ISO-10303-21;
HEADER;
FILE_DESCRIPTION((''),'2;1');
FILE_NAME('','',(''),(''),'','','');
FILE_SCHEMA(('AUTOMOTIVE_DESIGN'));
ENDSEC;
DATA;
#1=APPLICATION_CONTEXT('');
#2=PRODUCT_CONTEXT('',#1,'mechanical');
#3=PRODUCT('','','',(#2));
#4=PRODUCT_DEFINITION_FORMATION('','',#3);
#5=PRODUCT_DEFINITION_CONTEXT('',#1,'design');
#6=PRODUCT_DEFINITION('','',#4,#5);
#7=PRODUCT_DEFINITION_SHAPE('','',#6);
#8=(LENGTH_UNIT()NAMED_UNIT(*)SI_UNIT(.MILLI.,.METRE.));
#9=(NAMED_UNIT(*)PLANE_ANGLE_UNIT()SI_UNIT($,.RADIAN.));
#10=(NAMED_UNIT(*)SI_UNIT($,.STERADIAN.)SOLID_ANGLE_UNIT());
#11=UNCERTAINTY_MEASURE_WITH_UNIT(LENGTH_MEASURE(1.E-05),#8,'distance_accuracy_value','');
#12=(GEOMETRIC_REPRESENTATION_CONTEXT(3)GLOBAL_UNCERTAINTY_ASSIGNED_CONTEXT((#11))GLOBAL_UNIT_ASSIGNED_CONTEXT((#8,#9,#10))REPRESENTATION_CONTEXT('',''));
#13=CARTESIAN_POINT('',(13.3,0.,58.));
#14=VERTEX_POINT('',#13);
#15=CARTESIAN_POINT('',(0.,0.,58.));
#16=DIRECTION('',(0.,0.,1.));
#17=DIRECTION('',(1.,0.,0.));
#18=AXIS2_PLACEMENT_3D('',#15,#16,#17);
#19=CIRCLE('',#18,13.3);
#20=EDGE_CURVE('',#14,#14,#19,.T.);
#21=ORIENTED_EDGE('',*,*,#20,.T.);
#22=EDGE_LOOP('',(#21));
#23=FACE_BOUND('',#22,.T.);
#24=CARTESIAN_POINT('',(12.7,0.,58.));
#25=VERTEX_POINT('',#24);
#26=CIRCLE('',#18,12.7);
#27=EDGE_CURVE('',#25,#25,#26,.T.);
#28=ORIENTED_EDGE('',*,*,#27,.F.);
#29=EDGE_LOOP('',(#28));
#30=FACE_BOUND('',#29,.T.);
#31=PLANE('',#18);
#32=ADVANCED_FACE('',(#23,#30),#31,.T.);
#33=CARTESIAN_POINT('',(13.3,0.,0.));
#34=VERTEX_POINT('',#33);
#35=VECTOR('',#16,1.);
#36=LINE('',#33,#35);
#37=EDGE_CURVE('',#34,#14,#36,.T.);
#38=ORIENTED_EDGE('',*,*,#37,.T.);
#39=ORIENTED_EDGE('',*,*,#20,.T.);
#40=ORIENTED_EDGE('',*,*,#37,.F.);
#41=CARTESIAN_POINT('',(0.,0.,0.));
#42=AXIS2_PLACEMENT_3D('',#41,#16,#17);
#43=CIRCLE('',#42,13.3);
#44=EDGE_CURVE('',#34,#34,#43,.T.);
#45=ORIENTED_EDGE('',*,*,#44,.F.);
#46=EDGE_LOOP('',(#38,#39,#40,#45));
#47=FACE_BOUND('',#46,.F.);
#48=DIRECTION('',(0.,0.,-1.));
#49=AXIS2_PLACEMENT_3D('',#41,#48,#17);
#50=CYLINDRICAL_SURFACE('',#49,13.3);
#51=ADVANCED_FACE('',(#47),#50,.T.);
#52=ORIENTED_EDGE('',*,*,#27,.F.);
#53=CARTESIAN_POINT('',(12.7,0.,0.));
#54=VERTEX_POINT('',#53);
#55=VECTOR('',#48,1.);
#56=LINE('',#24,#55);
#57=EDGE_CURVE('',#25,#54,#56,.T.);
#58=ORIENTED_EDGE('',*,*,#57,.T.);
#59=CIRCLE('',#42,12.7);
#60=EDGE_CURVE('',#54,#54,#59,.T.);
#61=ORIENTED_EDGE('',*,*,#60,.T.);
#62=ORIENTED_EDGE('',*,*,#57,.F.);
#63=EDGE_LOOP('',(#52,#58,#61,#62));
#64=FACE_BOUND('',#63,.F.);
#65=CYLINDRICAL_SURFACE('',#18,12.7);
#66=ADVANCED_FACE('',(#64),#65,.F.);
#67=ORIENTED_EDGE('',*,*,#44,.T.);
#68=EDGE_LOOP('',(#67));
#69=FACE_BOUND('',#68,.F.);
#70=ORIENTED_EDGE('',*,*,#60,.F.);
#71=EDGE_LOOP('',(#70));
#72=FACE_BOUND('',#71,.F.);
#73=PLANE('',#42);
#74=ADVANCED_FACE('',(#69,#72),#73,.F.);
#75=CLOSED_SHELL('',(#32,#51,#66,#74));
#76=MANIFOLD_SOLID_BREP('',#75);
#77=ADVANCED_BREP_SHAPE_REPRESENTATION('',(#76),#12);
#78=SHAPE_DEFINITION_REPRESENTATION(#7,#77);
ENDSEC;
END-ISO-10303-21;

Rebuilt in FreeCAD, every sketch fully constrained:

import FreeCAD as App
import Part
import Sketcher
Q = App.Units.Quantity

doc = App.newDocument("Part")
body = doc.addObject("PartDesign::Body", "Body")

sketch1 = body.newObject("Sketcher::SketchObject", "Sketch")
sketch1.AttachmentSupport = (doc.getObject("XY_Plane"), [""])
sketch1.MapMode = "FlatFace"
sketch1.addGeometry(Part.Circle(App.Vector(0, 0, 0), App.Vector(0, 0, 1), 13), False)
sketch1.addConstraint(Sketcher.Constraint("Coincident", 0, 3, -1, 1))
sketch1.addConstraint(Sketcher.Constraint("Diameter", 0, Q("26.6 mm")))
pad1 = body.newObject("PartDesign::Pad", "Pad")
pad1.Profile = sketch1
pad1.Length = 58

sketch2 = body.newObject("Sketcher::SketchObject", "Sketch001")
sketch2.AttachmentSupport = (doc.getObject("XY_Plane"), [""])
sketch2.MapMode = "FlatFace"
sketch2.AttachmentOffset = App.Placement(App.Vector(0, 0, 58), App.Rotation())
sketch2.addGeometry(Part.Circle(App.Vector(0, 0, 0), App.Vector(0, 0, 1), 13), False)
sketch2.addConstraint(Sketcher.Constraint("Coincident", 0, 3, -1, 1))
sketch2.addConstraint(Sketcher.Constraint("Diameter", 0, Q("25.4 mm")))
pocket1 = body.newObject("PartDesign::Pocket", "Pocket")
pocket1.Profile = sketch2
pocket1.Length = 58

doc.recompute()
